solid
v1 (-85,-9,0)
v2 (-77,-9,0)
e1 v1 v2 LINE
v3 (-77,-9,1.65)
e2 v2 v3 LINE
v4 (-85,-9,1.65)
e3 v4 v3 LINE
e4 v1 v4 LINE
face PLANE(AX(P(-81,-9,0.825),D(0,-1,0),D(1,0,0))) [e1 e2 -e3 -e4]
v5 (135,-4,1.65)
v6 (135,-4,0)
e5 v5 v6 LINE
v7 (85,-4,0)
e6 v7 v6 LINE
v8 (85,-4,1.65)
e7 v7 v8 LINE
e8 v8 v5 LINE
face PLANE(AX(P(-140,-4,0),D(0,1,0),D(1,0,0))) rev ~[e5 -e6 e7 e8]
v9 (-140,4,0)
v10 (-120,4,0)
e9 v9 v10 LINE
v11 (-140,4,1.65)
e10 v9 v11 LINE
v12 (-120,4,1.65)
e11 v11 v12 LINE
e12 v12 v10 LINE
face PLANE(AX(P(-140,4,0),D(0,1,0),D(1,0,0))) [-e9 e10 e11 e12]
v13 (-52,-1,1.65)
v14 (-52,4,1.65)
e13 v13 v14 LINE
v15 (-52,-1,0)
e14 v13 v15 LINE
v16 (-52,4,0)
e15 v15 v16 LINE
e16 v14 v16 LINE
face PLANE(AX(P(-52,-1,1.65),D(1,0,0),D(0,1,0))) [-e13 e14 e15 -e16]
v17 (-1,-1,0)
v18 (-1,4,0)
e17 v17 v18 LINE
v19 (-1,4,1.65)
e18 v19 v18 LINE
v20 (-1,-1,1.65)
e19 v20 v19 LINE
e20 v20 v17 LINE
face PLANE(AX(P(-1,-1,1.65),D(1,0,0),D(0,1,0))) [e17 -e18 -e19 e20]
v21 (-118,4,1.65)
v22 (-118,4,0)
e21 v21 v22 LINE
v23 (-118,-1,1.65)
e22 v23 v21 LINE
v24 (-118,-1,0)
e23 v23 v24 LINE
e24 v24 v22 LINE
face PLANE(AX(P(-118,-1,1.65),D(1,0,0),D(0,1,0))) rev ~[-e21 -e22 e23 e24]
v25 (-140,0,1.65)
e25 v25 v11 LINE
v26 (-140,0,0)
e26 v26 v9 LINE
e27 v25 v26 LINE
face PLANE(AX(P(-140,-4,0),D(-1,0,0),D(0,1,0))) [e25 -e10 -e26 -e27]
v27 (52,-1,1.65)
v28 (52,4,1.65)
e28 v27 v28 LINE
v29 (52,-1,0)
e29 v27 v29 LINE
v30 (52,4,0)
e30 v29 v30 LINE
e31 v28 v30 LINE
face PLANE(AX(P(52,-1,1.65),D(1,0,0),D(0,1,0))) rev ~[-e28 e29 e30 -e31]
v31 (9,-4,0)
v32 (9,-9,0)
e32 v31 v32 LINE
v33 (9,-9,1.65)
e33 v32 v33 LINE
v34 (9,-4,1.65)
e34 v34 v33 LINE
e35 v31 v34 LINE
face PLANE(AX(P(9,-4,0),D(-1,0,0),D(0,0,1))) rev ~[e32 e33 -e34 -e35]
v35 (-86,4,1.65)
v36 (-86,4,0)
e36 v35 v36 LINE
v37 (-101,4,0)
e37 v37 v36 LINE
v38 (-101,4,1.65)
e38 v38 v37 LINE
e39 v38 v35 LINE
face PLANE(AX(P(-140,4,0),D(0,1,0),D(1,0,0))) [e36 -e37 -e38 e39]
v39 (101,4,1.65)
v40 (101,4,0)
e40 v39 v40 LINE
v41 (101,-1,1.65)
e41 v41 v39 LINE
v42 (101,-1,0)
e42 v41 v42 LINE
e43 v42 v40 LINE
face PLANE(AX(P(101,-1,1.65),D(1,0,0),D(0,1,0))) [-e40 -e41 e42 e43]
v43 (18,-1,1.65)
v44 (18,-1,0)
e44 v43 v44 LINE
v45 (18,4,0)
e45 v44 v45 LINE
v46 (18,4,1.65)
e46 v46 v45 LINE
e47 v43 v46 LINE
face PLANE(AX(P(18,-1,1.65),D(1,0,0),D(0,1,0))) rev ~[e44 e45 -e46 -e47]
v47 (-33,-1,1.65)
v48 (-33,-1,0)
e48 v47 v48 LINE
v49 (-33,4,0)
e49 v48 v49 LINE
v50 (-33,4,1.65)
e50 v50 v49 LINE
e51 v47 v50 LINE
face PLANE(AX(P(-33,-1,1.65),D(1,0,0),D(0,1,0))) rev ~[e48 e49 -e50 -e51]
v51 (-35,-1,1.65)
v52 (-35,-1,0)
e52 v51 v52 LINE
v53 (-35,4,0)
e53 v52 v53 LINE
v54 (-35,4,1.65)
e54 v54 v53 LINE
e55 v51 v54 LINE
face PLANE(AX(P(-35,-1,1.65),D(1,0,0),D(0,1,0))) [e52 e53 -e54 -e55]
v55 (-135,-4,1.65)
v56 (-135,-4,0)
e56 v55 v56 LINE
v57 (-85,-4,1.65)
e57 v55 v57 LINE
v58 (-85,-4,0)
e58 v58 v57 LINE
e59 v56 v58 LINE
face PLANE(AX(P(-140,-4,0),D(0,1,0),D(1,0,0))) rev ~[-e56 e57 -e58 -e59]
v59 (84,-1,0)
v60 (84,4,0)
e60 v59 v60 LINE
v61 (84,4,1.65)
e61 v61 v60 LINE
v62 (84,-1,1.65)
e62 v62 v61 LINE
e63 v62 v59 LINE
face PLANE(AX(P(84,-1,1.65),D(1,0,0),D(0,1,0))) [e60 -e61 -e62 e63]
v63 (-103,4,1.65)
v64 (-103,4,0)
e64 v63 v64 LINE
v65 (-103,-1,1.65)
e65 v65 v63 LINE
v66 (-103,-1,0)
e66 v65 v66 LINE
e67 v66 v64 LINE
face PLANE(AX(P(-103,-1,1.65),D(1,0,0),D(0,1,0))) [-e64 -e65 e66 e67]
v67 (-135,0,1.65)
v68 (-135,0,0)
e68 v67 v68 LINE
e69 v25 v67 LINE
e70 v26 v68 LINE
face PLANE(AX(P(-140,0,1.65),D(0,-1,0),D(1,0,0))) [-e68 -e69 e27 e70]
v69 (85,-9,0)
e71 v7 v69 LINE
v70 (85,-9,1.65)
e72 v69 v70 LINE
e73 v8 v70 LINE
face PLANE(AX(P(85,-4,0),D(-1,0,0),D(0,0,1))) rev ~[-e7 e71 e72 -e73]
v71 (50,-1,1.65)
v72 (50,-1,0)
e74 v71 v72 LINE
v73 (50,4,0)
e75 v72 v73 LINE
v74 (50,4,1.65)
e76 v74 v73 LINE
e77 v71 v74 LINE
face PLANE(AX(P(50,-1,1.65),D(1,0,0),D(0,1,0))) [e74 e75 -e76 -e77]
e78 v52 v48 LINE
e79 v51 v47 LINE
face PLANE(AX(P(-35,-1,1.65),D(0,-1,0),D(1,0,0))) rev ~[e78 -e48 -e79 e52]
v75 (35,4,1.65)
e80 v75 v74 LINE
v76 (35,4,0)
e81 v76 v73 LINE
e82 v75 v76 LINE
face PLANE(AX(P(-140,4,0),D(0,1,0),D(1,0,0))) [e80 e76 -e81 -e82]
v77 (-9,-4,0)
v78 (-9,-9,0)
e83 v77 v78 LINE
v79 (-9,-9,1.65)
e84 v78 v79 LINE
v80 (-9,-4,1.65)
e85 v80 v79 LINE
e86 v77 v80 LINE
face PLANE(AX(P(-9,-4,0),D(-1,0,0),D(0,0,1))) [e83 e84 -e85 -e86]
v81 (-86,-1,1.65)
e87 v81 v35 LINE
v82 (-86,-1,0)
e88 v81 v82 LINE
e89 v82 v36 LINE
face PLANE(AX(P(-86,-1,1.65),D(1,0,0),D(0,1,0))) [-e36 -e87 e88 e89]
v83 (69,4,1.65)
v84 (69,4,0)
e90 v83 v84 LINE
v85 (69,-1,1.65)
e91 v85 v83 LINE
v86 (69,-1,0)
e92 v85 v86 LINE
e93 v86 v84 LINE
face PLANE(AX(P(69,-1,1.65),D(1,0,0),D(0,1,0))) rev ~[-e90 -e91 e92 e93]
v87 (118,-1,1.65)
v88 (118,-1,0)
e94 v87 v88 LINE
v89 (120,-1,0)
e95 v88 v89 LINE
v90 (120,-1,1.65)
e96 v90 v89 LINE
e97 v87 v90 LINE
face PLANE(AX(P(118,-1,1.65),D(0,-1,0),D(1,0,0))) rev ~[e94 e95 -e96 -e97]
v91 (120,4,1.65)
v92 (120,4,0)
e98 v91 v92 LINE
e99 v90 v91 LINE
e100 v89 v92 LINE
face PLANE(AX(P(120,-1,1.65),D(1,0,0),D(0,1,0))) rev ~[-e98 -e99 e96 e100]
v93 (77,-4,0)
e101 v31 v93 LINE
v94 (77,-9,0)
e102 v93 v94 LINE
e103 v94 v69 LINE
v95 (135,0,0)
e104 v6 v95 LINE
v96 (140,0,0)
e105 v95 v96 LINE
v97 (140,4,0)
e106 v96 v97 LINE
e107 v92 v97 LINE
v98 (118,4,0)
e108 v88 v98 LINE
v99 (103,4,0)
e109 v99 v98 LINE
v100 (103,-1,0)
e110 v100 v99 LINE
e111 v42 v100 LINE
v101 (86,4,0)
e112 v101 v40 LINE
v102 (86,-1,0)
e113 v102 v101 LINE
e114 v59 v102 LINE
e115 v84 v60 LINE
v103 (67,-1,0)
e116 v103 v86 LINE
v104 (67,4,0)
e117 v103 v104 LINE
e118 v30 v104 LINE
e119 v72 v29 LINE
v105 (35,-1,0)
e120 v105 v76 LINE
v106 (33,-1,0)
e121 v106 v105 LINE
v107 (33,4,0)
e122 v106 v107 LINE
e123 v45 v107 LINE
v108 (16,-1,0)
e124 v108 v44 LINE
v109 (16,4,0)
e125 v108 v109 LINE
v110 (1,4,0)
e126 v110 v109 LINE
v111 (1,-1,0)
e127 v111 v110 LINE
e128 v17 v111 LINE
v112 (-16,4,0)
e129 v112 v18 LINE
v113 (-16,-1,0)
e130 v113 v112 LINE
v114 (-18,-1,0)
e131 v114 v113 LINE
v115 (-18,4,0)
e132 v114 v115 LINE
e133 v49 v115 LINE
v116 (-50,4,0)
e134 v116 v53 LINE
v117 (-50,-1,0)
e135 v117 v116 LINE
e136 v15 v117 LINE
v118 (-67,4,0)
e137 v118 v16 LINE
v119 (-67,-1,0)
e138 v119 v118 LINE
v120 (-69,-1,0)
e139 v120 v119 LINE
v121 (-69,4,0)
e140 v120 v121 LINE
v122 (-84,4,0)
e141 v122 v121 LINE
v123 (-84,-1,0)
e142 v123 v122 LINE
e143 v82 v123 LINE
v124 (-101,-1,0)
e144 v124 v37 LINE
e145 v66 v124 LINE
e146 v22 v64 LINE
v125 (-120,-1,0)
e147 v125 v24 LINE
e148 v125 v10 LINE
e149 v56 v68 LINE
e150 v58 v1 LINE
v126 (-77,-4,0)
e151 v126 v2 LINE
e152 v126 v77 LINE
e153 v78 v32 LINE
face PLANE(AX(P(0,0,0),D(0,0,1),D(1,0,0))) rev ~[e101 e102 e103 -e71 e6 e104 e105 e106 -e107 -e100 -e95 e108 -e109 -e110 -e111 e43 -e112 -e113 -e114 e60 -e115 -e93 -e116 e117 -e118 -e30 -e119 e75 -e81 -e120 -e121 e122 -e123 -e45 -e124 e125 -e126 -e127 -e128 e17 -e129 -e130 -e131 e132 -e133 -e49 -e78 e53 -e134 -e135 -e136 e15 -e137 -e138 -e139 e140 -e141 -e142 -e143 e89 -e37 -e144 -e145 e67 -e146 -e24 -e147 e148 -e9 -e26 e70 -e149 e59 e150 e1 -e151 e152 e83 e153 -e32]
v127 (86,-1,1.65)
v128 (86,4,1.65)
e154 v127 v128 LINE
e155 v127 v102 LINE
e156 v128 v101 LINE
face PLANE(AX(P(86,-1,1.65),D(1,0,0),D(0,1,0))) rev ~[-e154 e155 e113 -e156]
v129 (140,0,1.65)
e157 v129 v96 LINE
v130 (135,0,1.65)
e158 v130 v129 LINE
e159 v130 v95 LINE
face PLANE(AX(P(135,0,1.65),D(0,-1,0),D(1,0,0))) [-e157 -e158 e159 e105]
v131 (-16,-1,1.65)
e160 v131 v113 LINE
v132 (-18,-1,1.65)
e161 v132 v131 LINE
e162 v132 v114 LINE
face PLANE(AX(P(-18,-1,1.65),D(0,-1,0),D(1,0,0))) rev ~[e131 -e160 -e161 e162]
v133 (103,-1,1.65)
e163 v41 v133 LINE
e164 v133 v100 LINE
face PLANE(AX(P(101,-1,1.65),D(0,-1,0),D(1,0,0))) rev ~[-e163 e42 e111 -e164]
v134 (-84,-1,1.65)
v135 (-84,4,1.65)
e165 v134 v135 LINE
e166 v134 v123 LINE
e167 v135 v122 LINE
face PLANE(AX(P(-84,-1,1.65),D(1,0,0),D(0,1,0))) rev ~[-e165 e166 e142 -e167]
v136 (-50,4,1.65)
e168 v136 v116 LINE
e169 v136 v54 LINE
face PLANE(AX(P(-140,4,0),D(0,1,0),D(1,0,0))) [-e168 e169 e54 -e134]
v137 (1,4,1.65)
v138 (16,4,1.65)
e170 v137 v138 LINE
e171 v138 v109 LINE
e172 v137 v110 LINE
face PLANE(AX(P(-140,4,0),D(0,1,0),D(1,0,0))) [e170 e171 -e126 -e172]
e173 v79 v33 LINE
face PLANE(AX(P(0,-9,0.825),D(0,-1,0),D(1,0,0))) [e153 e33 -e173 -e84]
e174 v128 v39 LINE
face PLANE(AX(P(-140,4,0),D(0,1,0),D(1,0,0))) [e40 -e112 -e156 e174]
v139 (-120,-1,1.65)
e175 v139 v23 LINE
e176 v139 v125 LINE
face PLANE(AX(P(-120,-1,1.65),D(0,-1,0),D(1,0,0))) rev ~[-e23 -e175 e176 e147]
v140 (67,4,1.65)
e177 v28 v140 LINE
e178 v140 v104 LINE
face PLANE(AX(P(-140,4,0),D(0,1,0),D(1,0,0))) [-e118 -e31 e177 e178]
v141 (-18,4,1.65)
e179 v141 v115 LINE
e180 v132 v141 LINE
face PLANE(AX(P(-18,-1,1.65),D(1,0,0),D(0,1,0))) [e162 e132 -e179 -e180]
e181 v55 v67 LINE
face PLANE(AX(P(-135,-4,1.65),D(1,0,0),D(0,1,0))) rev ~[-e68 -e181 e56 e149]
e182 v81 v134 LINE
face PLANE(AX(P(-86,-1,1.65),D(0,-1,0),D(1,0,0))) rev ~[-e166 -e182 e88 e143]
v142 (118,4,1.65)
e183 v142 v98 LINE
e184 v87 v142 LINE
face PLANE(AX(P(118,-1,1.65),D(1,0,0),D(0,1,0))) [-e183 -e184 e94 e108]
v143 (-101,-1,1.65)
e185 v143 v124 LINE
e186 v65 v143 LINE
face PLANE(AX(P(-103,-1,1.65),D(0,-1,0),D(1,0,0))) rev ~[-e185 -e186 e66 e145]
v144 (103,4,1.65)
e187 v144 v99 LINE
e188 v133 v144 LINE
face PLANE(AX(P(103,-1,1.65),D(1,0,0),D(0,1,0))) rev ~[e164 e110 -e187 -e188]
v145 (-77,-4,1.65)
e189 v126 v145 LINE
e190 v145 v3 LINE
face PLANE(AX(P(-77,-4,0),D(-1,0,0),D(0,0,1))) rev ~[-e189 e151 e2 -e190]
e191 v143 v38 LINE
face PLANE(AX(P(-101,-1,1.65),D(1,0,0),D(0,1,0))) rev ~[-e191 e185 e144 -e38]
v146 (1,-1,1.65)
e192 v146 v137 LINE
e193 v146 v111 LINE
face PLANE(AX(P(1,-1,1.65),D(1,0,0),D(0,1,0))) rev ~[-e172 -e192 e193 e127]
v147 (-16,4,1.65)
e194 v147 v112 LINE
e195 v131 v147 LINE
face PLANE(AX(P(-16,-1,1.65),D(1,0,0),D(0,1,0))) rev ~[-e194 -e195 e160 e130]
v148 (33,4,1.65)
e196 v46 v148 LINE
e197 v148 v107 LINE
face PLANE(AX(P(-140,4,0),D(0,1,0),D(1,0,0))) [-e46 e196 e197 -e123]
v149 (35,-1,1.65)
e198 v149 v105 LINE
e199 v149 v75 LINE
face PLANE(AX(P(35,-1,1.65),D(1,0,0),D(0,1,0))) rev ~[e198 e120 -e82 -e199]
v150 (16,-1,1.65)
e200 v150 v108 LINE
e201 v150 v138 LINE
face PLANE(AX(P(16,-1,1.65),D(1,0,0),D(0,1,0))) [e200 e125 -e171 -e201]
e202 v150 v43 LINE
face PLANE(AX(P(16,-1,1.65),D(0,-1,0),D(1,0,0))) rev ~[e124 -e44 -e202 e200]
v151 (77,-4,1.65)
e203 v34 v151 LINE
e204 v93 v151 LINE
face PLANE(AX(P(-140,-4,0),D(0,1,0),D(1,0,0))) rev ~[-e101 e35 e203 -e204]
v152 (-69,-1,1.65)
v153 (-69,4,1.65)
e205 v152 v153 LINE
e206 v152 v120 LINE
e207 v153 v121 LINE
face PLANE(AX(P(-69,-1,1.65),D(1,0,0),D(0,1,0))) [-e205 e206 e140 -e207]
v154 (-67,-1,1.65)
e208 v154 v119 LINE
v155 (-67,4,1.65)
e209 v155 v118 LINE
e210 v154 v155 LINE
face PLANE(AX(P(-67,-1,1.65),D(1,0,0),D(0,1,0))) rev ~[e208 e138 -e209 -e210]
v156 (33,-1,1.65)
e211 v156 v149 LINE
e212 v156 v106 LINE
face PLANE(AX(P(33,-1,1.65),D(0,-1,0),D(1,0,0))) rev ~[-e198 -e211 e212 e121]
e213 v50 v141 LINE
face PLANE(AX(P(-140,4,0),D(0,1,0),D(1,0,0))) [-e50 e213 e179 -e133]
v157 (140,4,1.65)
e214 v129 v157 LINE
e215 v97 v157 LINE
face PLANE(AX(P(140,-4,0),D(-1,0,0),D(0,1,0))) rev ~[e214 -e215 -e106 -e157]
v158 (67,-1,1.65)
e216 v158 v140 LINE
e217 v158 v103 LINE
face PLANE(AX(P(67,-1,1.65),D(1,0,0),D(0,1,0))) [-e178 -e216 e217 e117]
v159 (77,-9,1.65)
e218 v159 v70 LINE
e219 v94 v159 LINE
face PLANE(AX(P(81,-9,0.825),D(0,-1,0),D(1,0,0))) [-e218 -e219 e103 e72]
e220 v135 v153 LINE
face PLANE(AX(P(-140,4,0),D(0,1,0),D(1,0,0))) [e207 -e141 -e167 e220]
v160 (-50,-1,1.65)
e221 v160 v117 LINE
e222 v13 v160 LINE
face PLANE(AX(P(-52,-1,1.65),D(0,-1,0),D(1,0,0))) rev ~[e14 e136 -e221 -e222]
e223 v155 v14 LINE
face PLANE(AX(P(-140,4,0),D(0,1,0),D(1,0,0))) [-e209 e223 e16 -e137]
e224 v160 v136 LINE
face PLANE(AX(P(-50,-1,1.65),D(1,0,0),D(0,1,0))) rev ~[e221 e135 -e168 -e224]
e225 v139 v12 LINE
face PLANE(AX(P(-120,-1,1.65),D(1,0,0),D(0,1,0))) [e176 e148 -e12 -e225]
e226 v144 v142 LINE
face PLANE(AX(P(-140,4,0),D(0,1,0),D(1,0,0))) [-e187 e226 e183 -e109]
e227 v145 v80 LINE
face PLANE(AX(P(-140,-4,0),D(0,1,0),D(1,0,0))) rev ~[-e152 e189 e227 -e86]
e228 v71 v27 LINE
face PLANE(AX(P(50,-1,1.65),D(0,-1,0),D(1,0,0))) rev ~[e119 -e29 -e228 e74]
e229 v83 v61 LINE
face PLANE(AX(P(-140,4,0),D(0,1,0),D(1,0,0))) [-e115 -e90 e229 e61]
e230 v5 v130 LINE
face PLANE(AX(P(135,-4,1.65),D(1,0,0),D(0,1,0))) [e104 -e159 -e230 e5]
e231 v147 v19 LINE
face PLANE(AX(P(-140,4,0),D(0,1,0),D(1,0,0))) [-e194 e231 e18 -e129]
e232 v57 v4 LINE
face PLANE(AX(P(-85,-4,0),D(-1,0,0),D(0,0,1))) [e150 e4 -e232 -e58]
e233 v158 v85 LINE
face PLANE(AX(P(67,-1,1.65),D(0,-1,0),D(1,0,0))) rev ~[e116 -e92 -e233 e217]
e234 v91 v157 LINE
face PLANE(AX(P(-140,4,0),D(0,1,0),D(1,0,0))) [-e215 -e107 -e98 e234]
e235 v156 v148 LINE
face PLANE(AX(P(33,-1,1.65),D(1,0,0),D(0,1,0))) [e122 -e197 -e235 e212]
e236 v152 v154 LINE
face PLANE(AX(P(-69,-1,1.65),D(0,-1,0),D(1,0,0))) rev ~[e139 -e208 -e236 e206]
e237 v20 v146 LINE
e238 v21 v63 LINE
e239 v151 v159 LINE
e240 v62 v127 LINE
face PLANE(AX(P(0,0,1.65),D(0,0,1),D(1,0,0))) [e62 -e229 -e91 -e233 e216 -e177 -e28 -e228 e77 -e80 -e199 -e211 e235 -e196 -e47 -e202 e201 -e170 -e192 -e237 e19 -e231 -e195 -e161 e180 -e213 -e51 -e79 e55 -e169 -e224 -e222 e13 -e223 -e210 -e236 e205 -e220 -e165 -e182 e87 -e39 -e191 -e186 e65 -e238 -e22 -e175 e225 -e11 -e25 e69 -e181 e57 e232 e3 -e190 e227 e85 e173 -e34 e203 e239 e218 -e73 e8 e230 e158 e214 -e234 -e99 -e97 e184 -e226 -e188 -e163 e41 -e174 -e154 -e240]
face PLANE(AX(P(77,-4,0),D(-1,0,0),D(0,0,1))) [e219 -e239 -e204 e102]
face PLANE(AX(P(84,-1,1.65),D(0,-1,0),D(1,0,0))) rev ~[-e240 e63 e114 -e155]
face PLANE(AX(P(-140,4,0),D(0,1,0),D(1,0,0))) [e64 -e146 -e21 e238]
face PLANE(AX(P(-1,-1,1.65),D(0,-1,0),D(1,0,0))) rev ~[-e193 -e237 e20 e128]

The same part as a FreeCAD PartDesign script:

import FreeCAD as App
import Part
import Sketcher
from FreeCAD import Vector

doc = App.newDocument("Part")
body = doc.addObject("PartDesign::Body", "Body")

sketch1 = body.newObject("Sketcher::SketchObject", "Sketch")
sketch1.AttachmentSupport = (doc.getObject("XY_Plane"), [""])
sketch1.MapMode = "FlatFace"
sketch1.addGeometry([
    Part.LineSegment(Vector(-140, 4, 0), Vector(-140, -4, 0)),
    Part.LineSegment(Vector(-140, -4, 0), Vector(140, -4, 0)),
    Part.LineSegment(Vector(140, -4, 0), Vector(140, 4, 0)),
    Part.LineSegment(Vector(140, 4, 0), Vector(-140, 4, 0)),
], False)
sketch1.addConstraint([
    Sketcher.Constraint("Coincident", 0, 2, 1, 1),
    Sketcher.Constraint("Coincident", 1, 2, 2, 1),
    Sketcher.Constraint("Coincident", 2, 2, 3, 1),
    Sketcher.Constraint("Coincident", 3, 2, 0, 1),
    Sketcher.Constraint("Vertical", 0),
    Sketcher.Constraint("Horizontal", 1),
    Sketcher.Constraint("Vertical", 2),
    Sketcher.Constraint("Horizontal", 3),
    Sketcher.Constraint("Symmetric", 0, 2, 2, 2, -1, 1),
    Sketcher.Constraint("DistanceX", 1, 1, 1, 2, 280.0),
    Sketcher.Constraint("DistanceY", 0, 2, 0, 1, 8.0),
])
pad1 = body.newObject("PartDesign::Pad", "Pad")
pad1.Profile = sketch1
pad1.Length = 1.65

sketch2 = body.newObject("Sketcher::SketchObject", "Sketch001")
sketch2.AttachmentSupport = (doc.getObject("XY_Plane"), [""])
sketch2.MapMode = "FlatFace"
sketch2.AttachmentOffset = App.Placement(Vector(0, 0, 1.65), App.Rotation())
sketch2.addGeometry([
    Part.LineSegment(Vector(-120, 4, 0), Vector(-120, -1, 0)),
    Part.LineSegment(Vector(-120, -1, 0), Vector(-118, -1, 0)),
    Part.LineSegment(Vector(-118, -1, 0), Vector(-118, 4, 0)),
    Part.LineSegment(Vector(-118, 4, 0), Vector(-120, 4, 0)),
], False)
sketch2.addConstraint([
    Sketcher.Constraint("Coincident", 0, 2, 1, 1),
    Sketcher.Constraint("Coincident", 1, 2, 2, 1),
    Sketcher.Constraint("Coincident", 2, 2, 3, 1),
    Sketcher.Constraint("Coincident", 3, 2, 0, 1),
    Sketcher.Constraint("Vertical", 0),
    Sketcher.Constraint("Horizontal", 1),
    Sketcher.Constraint("Vertical", 2),
    Sketcher.Constraint("Horizontal", 3),
    Sketcher.Constraint("DistanceX", 1, 1, 1, 2, 2.0),
    Sketcher.Constraint("DistanceY", 0, 2, 0, 1, 5.0),
    Sketcher.Constraint("DistanceX", 0, 2, -1, 1, 120.0),
    Sketcher.Constraint("DistanceY", 0, 2, -1, 1, 1.0),
])
pocket1 = body.newObject("PartDesign::Pocket", "Pocket")
pocket1.Profile = sketch2
pocket1.Length = 5
doc.recompute()

linearpattern = body.newObject("PartDesign::LinearPattern", "LinearPattern")
linearpattern.Originals = [pocket1]
linearpattern.Direction = (doc.getObject("X_Axis"), [""])
linearpattern.Mode = "offset"
linearpattern.Offset = 17
linearpattern.Occurrences = 15
body.Tip = linearpattern

sketch3 = body.newObject("Sketcher::SketchObject", "Sketch002")
sketch3.AttachmentSupport = (doc.getObject("XY_Plane"), [""])
sketch3.MapMode = "FlatFace"
sketch3.AttachmentOffset = App.Placement(Vector(0, 0, 1.65), App.Rotation())
sketch3.addGeometry([
    Part.LineSegment(Vector(-140, 0, 0), Vector(-140, -4, 0)),
    Part.LineSegment(Vector(-140, -4, 0), Vector(-135, -4, 0)),
    Part.LineSegment(Vector(-135, -4, 0), Vector(-135, 0, 0)),
    Part.LineSegment(Vector(-135, 0, 0), Vector(-140, 0, 0)),
], False)
sketch3.addConstraint([
    Sketcher.Constraint("Coincident", 0, 2, 1, 1),
    Sketcher.Constraint("Coincident", 1, 2, 2, 1),
    Sketcher.Constraint("Coincident", 2, 2, 3, 1),
    Sketcher.Constraint("Coincident", 3, 2, 0, 1),
    Sketcher.Constraint("Vertical", 0),
    Sketcher.Constraint("Horizontal", 1),
    Sketcher.Constraint("Vertical", 2),
    Sketcher.Constraint("Horizontal", 3),
    Sketcher.Constraint("PointOnObject", 2, 2, -1),
    Sketcher.Constraint("DistanceX", 1, 1, 1, 2, 5.0),
    Sketcher.Constraint("DistanceY", 0, 2, 0, 1, 4.0),
    Sketcher.Constraint("DistanceX", 0, 2, -1, 1, 140.0),
])
pocket2 = body.newObject("PartDesign::Pocket", "Pocket001")
pocket2.Profile = sketch3
pocket2.Length = 5
doc.recompute()

linearpattern2 = body.newObject("PartDesign::LinearPattern", "LinearPattern001")
linearpattern2.Originals = [pocket2]
linearpattern2.Direction = (doc.getObject("X_Axis"), [""])
linearpattern2.Mode = "offset"
linearpattern2.Offset = 275
linearpattern2.Occurrences = 2
body.Tip = linearpattern2

sketch4 = body.newObject("Sketcher::SketchObject", "Sketch003")
sketch4.AttachmentSupport = (doc.getObject("XZ_Plane"), [""])
sketch4.MapMode = "FlatFace"
sketch4.AttachmentOffset = App.Placement(Vector(0, 0, 4), App.Rotation())
sketch4.addGeometry([
    Part.LineSegment(Vector(-85, 1.6, 0), Vector(-85, 0, 0)),
    Part.LineSegment(Vector(-85, 0, 0), Vector(-77, 0, 0)),
    Part.LineSegment(Vector(-77, 0, 0), Vector(-77, 1.6, 0)),
    Part.LineSegment(Vector(-77, 1.6, 0), Vector(-85, 1.6, 0)),
    Part.LineSegment(Vector(-9, 1.6, 0), Vector(-9, 0, 0)),
    Part.LineSegment(Vector(-9, 0, 0), Vector(9, 0, 0)),
    Part.LineSegment(Vector(9, 0, 0), Vector(9, 1.6, 0)),
    Part.LineSegment(Vector(9, 1.6, 0), Vector(-9, 1.6, 0)),
    Part.LineSegment(Vector(77, 1.6, 0), Vector(77, 0, 0)),
    Part.LineSegment(Vector(77, 0, 0), Vector(85, 0, 0)),
    Part.LineSegment(Vector(85, 0, 0), Vector(85, 1.6, 0)),
    Part.LineSegment(Vector(85, 1.6, 0), Vector(77, 1.6, 0)),
], False)
sketch4.addConstraint([
    Sketcher.Constraint("Coincident", 0, 2, 1, 1),
    Sketcher.Constraint("Coincident", 1, 2, 2, 1),
    Sketcher.Constraint("Coincident", 2, 2, 3, 1),
    Sketcher.Constraint("Coincident", 3, 2, 0, 1),
    Sketcher.Constraint("Coincident", 4, 2, 5, 1),
    Sketcher.Constraint("Coincident", 5, 2, 6, 1),
    Sketcher.Constraint("Coincident", 6, 2, 7, 1),
    Sketcher.Constraint("Coincident", 7, 2, 4, 1),
    Sketcher.Constraint("Coincident", 8, 2, 9, 1),
    Sketcher.Constraint("Coincident", 9, 2, 10, 1),
    Sketcher.Constraint("Coincident", 10, 2, 11, 1),
    Sketcher.Constraint("Coincident", 11, 2, 8, 1),
    Sketcher.Constraint("Vertical", 0),
    Sketcher.Constraint("Horizontal", 1),
    Sketcher.Constraint("Vertical", 2),
    Sketcher.Constraint("Horizontal", 3),
    Sketcher.Constraint("Vertical", 4),
    Sketcher.Constraint("Horizontal", 5),
    Sketcher.Constraint("Vertical", 6),
    Sketcher.Constraint("Horizontal", 7),
    Sketcher.Constraint("Vertical", 8),
    Sketcher.Constraint("Horizontal", 9),
    Sketcher.Constraint("Vertical", 10),
    Sketcher.Constraint("Horizontal", 11),
    Sketcher.Constraint("Symmetric", 4, 2, 5, 2, -1, 1),
    Sketcher.Constraint("Symmetric", 1, 2, 8, 2, -1, 1),
    Sketcher.Constraint("Symmetric", 0, 2, 9, 2, -2),
    Sketcher.Constraint("Horizontal", 3, 2, 6, 2),
    Sketcher.Constraint("Horizontal", 7, 2, 10, 2),
    Sketcher.Constraint("DistanceX", 1, 1, 1, 2, 8.0),
    Sketcher.Constraint("DistanceX", 5, 1, 5, 2, 18.0),
    Sketcher.Constraint("DistanceX", 0, 2, -1, 1, 85.0),
    Sketcher.Constraint("DistanceY", 0, 2, 0, 1, 1.65),
])
pad2 = body.newObject("PartDesign::Pad", "Pad001")
pad2.Profile = sketch4
pad2.Length = 5

doc.recompute()
